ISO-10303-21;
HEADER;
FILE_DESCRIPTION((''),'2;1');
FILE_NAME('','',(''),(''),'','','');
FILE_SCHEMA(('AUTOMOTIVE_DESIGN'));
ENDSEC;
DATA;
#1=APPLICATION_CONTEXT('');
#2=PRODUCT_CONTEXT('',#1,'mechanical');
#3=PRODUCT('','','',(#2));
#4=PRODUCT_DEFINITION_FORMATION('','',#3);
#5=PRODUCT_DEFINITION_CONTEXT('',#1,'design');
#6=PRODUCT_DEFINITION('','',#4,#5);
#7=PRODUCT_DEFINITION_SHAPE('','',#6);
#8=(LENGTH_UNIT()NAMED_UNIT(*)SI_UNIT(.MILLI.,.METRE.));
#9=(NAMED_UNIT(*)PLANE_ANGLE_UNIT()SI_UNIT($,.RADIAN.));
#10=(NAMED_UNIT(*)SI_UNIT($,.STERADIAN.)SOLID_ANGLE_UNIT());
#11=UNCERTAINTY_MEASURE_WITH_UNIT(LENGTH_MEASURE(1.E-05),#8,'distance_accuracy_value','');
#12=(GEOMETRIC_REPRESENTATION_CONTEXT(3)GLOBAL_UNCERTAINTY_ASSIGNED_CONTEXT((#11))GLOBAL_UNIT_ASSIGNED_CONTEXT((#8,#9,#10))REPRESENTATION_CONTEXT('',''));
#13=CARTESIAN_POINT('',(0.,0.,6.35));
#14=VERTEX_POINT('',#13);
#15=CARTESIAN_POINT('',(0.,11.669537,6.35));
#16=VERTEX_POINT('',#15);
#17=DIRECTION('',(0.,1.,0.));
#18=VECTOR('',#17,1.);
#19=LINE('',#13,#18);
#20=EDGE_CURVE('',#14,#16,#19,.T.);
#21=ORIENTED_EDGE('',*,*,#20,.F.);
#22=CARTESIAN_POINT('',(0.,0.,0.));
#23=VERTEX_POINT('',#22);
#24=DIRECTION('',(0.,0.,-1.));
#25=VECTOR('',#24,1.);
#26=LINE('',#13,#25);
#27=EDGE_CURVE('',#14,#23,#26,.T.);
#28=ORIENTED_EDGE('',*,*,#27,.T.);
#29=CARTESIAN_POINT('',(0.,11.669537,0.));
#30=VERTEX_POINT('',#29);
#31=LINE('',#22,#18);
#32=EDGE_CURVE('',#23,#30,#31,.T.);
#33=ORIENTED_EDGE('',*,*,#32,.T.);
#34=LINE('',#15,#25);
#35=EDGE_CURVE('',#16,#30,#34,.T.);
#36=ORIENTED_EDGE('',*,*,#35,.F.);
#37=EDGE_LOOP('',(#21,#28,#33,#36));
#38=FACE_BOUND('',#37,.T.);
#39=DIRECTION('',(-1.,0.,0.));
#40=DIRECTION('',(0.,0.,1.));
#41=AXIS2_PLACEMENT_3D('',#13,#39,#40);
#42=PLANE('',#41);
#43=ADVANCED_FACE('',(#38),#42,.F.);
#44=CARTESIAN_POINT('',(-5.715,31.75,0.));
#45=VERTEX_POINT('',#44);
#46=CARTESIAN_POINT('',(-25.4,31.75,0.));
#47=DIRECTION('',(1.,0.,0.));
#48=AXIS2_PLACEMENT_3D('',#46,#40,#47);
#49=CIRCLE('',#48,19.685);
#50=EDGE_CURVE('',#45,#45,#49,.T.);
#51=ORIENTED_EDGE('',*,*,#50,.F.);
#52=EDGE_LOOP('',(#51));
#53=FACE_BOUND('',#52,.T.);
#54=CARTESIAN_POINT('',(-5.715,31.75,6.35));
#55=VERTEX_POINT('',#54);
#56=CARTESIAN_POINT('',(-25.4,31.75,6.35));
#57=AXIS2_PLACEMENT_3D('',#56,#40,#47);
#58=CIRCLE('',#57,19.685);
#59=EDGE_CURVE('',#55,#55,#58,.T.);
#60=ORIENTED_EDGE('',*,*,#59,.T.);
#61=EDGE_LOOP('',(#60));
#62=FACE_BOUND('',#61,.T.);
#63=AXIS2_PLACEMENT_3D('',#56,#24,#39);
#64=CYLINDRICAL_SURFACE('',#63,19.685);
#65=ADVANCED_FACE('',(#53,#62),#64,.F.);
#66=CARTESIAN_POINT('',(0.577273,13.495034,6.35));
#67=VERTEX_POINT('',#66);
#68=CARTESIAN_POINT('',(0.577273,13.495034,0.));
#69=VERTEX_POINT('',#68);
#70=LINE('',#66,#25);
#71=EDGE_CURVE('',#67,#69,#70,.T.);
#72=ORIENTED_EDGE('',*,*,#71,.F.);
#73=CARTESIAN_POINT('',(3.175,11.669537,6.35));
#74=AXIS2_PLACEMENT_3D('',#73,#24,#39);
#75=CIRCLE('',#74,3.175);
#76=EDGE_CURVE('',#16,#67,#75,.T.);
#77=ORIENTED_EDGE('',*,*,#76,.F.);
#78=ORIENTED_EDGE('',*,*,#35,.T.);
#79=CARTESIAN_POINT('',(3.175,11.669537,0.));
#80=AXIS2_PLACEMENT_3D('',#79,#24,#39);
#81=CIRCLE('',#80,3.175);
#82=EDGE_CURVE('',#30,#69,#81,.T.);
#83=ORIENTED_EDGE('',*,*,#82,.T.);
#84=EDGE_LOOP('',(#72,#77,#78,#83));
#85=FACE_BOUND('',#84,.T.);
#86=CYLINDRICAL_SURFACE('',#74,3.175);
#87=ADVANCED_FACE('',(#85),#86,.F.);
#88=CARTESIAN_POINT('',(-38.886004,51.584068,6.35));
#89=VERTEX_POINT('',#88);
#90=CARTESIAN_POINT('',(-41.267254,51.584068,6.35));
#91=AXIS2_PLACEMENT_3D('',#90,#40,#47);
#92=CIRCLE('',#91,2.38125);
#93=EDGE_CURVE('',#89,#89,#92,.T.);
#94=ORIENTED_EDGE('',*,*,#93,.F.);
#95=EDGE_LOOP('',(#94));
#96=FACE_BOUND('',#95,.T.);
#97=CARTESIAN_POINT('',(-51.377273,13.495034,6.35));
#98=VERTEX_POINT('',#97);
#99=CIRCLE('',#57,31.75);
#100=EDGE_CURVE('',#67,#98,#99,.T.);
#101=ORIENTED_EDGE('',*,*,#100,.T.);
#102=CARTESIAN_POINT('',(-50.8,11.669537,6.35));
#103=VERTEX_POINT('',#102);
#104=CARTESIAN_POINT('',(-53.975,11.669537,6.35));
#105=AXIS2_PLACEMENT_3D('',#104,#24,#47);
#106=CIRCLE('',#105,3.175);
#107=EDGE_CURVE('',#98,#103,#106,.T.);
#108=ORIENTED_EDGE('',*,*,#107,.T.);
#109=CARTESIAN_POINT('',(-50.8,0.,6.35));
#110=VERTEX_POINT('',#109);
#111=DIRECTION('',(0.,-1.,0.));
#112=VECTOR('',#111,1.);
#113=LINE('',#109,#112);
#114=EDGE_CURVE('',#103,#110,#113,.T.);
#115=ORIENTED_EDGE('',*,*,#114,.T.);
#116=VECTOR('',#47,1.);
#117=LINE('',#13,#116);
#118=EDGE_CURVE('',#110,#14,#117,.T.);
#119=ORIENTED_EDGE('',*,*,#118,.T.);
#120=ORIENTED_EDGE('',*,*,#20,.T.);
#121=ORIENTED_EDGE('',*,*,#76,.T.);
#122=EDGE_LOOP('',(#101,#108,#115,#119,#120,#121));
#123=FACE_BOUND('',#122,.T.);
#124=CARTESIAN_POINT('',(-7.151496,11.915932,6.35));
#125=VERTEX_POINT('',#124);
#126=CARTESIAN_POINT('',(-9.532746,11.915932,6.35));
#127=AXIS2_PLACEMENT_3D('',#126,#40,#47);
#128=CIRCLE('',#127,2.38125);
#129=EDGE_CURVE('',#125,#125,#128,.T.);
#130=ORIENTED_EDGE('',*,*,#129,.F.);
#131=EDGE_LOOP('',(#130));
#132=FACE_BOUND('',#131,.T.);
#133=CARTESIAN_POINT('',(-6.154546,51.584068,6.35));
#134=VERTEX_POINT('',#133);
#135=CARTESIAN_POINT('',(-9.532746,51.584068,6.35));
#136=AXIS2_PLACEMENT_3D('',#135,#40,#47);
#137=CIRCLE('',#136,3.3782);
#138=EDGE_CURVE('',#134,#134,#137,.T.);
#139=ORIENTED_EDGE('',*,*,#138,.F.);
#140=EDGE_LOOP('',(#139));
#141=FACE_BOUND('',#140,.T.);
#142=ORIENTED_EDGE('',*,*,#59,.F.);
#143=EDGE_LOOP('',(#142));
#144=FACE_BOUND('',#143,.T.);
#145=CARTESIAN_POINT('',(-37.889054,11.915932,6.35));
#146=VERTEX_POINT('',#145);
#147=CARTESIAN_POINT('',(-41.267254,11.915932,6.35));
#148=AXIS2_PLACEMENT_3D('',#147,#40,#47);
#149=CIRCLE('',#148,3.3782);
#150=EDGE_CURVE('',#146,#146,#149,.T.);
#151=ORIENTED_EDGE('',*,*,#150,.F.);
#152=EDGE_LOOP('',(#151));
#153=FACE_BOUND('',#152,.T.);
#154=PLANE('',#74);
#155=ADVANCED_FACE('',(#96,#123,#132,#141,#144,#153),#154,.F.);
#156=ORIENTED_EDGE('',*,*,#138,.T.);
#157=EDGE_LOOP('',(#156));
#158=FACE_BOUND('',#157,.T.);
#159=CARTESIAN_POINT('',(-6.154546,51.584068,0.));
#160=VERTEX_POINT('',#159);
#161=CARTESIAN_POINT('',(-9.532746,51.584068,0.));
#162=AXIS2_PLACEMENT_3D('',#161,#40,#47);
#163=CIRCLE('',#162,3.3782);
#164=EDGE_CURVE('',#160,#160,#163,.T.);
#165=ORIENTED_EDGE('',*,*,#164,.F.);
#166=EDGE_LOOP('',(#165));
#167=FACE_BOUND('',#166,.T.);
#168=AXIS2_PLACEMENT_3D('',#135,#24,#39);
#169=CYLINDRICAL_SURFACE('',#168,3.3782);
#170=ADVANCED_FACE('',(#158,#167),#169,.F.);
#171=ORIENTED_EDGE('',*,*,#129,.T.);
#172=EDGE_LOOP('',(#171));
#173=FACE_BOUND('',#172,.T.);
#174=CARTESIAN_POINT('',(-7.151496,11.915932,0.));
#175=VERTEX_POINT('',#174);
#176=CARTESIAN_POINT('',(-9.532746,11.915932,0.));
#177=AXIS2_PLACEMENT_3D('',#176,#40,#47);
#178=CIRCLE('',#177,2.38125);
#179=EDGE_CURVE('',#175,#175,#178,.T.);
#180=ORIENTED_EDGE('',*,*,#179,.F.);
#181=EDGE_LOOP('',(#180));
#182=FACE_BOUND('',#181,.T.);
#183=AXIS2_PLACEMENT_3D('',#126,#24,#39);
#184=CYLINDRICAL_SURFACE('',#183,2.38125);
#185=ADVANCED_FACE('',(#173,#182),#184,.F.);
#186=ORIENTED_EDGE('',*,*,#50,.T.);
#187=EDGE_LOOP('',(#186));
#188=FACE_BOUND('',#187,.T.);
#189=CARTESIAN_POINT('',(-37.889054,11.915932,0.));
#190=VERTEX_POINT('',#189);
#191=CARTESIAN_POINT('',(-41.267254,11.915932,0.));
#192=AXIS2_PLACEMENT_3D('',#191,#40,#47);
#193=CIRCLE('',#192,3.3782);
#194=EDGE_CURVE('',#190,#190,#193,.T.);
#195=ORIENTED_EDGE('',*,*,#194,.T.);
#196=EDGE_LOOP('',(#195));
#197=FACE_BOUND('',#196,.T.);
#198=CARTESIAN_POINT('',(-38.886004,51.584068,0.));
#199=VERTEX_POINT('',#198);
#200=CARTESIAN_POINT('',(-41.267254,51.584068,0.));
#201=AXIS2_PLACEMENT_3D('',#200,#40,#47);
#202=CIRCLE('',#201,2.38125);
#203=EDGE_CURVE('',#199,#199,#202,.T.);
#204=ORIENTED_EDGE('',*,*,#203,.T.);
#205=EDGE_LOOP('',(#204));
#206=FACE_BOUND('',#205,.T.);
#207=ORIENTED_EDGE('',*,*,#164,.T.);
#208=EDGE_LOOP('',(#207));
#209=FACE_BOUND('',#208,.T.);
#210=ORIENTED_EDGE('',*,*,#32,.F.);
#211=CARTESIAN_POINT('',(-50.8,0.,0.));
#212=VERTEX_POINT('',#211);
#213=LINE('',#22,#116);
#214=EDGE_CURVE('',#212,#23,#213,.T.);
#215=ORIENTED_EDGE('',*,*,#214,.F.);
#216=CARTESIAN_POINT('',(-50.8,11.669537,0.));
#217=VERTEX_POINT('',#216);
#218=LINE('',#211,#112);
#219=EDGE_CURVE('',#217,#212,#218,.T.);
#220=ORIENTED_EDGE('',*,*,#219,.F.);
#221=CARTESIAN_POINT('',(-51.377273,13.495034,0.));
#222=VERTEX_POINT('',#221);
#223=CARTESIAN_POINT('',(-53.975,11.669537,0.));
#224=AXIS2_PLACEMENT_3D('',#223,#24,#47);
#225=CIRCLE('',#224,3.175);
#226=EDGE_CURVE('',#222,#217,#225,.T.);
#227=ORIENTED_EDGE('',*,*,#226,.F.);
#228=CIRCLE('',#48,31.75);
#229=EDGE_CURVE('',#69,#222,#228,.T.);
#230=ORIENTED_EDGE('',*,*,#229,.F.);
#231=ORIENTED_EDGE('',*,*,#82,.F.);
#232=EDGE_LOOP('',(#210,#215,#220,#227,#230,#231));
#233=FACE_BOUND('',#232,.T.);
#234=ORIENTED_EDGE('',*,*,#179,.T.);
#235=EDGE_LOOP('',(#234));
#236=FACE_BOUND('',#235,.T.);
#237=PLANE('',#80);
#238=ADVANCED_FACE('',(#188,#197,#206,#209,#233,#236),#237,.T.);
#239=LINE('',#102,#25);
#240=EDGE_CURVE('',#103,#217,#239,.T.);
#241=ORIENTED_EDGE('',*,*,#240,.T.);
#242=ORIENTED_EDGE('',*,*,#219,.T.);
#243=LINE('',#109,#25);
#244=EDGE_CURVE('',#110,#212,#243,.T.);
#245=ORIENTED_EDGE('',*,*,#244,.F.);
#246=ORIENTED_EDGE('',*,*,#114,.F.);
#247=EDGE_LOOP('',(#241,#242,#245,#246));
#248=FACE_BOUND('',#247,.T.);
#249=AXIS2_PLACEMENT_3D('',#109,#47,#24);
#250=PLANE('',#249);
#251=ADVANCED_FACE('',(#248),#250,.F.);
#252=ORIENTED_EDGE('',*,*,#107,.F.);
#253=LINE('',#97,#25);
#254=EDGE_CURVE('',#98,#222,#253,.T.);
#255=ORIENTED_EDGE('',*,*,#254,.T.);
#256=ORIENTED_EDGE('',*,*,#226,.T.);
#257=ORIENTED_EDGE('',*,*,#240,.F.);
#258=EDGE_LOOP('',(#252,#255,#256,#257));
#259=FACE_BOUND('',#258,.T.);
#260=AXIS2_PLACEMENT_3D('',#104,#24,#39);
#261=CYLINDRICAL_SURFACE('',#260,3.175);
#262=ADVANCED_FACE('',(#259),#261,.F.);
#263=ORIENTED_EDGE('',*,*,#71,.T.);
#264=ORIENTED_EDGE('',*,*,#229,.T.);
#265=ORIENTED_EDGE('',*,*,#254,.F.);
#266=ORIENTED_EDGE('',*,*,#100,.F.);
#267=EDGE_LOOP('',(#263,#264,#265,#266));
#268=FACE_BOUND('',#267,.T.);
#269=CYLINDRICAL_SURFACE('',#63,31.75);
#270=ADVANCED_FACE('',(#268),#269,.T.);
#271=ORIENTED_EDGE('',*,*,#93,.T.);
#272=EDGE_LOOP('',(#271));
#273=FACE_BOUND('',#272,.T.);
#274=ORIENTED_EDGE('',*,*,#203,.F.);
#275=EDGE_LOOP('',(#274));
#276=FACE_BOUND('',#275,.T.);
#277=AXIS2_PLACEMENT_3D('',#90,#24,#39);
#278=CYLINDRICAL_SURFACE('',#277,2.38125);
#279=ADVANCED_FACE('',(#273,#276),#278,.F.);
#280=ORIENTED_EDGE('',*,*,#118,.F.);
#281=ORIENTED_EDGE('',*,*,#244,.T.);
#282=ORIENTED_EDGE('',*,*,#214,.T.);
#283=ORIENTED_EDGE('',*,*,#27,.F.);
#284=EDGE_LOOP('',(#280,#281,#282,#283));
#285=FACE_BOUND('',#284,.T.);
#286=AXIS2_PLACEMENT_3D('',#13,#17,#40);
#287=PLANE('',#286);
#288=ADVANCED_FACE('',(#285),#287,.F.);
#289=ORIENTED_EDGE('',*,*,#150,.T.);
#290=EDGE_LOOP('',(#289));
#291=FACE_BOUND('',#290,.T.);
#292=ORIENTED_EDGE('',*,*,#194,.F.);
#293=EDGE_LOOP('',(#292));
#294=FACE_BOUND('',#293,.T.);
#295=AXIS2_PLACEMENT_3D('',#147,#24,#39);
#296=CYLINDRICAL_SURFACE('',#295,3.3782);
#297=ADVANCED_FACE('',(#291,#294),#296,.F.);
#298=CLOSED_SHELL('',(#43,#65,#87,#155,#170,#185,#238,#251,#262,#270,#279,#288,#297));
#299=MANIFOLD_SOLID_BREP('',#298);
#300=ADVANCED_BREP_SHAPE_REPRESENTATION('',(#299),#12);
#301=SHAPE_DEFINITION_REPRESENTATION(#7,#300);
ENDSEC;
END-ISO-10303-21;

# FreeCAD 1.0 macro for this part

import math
import FreeCAD as App
import Part
import Sketcher

V = App.Vector
Q = App.Units.Quantity

doc = App.newDocument("Part")
body = doc.addObject("PartDesign::Body", "Body")

sketch1 = body.newObject("Sketcher::SketchObject", "Sketch")
sketch1.AttachmentSupport = (doc.getObject("XY_Plane"), [""])
sketch1.MapMode = "FlatFace"
sketch1.addGeometry([
    Part.LineSegment(V(-50.8, 0, 0), V(0, 0, 0)),
    Part.LineSegment(V(0, 0, 0), V(0, 11.7, 0)),
    Part.ArcOfCircle(Part.Circle(V(3.2, 11.7, 0), V(0, 0, 1), 3.2), math.radians(145), math.radians(180)),
    Part.ArcOfCircle(Part.Circle(V(-25.4, 31.8, 0), V(0, 0, 1), 31.8), math.radians(-35), math.radians(215)),
    Part.ArcOfCircle(Part.Circle(V(-54, 11.7, 0), V(0, 0, 1), 3.2), math.radians(0), math.radians(35)),
    Part.LineSegment(V(-50.8, 11.7, 0), V(-50.8, 0, 0)),
    Part.Circle(V(-9.5, 11.9, 0), V(0, 0, 1), 2.4),
    Part.Circle(V(-41.3, 11.9, 0), V(0, 0, 1), 3.4),
    Part.Circle(V(-25.4, 31.8, 0), V(0, 0, 1), 19.7),
    Part.Circle(V(-9.5, 51.6, 0), V(0, 0, 1), 3.4),
    Part.Circle(V(-41.3, 51.6, 0), V(0, 0, 1), 2.4),
], False)
sketch1.addConstraint([
    Sketcher.Constraint("Coincident", 0, 2, 1, 1),
    Sketcher.Constraint("Tangent", 1, 2, 2, 2),
    Sketcher.Constraint("Tangent", 2, 1, 3, 1),
    Sketcher.Constraint("Tangent", 3, 2, 4, 2),
    Sketcher.Constraint("Tangent", 4, 1, 5, 1),
    Sketcher.Constraint("Coincident", 5, 2, 0, 1),
    Sketcher.Constraint("Horizontal", 0),
    Sketcher.Constraint("Vertical", 1),
    Sketcher.Constraint("Vertical", 5),
    Sketcher.Constraint("Coincident", 0, 2, -1, 1),
    Sketcher.Constraint("Coincident", 8, 3, 3, 3),
    Sketcher.Constraint("Equal", 2, 4),
    Sketcher.Constraint("Equal", 7, 9),
    Sketcher.Constraint("Equal", 6, 10),
    Sketcher.Constraint("Horizontal", 2, 3, 4, 3),
    Sketcher.Constraint("Horizontal", 6, 3, 7, 3),
    Sketcher.Constraint("Horizontal", 9, 3, 10, 3),
    Sketcher.Constraint("Vertical", 6, 3, 9, 3),
    Sketcher.Constraint("Vertical", 7, 3, 10, 3),
    Sketcher.Constraint("Diameter", 8, Q("1.55 in")),
    Sketcher.Constraint("DistanceX", 0, 1, 0, 2, Q("2 in")),
    Sketcher.Constraint("Radius", 3, Q("1.25 in")),
    Sketcher.Constraint("Diameter", 6, Q("0.1875 in")),
    Sketcher.Constraint("Diameter", 7, Q("0.266 in")),
    Sketcher.Constraint("Radius", 2, Q("0.125 in")),
    Sketcher.Constraint("DistanceY", -1, 1, 3, 3, Q("1.25 in")),
    Sketcher.Constraint("DistanceY", 6, 3, 2, 1, Q("1.579101 mm")),
    Sketcher.Constraint("DistanceX", 7, 3, 6, 3, Q("31.734508 mm")),
    Sketcher.Constraint("DistanceY", 2, 3, 9, 3, Q("39.914531 mm")),
    Sketcher.Constraint("DistanceX", 6, 3, 2, 1, Q("10.110019 mm")),
])
pad1 = body.newObject("PartDesign::Pad", "Pad")
pad1.Profile = sketch1
pad1.Length = Q("0.25 in")

doc.recompute()
